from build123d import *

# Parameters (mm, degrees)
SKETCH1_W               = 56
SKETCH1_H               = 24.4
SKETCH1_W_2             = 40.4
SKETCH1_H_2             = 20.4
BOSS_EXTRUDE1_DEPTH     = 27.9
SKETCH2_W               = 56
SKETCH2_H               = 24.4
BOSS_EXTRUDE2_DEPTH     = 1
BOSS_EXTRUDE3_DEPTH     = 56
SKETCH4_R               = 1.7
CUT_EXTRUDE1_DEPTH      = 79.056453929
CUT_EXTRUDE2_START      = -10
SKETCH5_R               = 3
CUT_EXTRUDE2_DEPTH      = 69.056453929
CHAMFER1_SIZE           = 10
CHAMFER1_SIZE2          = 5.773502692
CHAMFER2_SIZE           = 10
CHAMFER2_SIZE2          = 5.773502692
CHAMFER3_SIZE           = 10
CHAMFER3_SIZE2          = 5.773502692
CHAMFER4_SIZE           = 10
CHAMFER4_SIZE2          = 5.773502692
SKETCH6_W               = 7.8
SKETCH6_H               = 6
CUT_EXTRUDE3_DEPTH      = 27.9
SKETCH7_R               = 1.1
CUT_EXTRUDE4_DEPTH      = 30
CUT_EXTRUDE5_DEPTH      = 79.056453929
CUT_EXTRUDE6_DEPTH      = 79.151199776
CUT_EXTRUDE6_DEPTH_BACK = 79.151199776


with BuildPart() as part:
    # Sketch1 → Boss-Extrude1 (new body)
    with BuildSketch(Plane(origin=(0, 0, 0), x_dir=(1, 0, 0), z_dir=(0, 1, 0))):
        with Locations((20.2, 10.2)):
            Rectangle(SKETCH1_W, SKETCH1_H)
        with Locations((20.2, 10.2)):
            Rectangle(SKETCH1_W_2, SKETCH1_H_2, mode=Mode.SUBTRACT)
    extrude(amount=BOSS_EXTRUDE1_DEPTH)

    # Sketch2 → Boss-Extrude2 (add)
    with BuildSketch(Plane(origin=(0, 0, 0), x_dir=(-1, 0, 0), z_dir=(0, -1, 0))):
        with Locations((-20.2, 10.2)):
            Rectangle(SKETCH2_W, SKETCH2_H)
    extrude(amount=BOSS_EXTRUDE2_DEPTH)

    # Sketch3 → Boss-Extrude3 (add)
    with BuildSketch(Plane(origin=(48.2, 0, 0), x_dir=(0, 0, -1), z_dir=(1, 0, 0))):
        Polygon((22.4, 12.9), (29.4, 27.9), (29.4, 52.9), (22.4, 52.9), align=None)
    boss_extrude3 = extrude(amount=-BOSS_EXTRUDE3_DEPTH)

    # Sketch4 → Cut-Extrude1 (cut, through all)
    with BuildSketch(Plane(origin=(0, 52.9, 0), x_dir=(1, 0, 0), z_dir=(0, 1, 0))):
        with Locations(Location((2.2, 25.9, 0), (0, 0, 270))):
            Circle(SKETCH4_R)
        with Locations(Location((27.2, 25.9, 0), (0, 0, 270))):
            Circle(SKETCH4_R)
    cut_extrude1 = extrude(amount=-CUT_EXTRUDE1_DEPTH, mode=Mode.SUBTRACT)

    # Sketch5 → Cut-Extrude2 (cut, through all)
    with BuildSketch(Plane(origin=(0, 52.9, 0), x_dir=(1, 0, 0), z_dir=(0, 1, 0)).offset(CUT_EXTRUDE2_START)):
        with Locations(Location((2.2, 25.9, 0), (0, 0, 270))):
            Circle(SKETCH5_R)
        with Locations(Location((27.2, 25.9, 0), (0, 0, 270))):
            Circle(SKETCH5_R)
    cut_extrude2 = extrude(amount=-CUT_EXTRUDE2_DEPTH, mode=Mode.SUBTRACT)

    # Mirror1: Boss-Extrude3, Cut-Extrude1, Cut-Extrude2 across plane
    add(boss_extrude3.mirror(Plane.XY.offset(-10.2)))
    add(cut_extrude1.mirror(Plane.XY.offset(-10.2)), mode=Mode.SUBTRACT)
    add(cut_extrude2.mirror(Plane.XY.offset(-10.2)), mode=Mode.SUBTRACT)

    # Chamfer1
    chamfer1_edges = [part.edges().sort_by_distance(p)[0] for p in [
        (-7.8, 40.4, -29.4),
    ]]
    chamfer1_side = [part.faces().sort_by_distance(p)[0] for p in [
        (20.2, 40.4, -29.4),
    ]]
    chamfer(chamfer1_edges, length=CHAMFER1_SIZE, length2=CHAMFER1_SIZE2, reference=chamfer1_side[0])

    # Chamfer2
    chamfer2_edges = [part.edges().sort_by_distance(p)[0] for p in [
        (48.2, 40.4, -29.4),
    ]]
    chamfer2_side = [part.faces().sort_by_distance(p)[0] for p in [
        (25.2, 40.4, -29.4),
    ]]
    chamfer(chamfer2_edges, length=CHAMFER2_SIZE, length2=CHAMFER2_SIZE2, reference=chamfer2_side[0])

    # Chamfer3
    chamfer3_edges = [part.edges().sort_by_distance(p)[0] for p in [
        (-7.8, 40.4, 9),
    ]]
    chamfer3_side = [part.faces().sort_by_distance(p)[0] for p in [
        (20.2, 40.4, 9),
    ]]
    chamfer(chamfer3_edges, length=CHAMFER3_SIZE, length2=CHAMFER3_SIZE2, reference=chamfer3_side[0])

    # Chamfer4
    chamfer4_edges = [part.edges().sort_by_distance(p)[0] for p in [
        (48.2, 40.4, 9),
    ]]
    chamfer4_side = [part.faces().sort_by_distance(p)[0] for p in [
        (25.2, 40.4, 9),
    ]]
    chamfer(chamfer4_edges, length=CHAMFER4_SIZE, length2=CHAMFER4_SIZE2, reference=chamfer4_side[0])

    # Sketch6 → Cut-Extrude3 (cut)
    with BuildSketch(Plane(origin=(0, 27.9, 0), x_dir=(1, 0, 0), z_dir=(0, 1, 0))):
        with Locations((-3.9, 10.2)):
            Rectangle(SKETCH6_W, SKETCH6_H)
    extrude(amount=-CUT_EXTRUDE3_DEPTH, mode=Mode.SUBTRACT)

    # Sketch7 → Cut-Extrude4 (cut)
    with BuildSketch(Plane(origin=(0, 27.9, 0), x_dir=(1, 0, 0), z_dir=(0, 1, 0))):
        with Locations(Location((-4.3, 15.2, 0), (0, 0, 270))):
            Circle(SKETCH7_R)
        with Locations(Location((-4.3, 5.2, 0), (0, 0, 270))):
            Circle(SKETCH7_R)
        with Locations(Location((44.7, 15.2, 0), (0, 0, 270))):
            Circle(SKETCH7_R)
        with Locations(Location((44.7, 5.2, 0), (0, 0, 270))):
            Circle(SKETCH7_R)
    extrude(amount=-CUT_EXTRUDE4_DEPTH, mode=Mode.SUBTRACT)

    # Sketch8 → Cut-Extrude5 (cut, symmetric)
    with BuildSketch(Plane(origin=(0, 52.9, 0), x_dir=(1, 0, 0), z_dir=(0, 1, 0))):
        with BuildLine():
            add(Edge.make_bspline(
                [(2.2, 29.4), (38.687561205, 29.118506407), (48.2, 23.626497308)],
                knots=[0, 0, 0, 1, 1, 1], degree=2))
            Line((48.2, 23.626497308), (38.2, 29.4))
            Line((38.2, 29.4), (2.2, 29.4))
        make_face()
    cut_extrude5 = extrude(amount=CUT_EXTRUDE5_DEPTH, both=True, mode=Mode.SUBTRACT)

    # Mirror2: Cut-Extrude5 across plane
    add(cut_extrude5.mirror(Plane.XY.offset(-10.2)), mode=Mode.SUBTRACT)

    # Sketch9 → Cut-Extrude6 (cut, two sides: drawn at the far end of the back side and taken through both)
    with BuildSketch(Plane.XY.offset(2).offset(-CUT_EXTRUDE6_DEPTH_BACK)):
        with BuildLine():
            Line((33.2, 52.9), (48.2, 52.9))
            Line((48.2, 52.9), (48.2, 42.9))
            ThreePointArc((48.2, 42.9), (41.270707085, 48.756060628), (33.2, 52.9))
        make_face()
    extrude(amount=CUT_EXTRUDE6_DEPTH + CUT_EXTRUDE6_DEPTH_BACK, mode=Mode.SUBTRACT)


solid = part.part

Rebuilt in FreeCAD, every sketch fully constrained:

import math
import FreeCAD as App
import Part
import Sketcher

V = App.Vector


def edges_at(feature, points):
    """Names of the edges that pass closest to the given points."""
    edges = feature.Shape.Edges
    near = lambda p: min(range(len(edges)), key=lambda i: edges[i].distToShape(Part.Vertex(*p))[0])
    return sorted({f"Edge{near(p) + 1}" for p in points})

doc = App.newDocument("Part")
params = doc.addObject("Spreadsheet::Sheet", "Params")
for row, (alias, value) in enumerate([
    ("sketch1_width", "56 mm"),
    ("sketch1_width2", "40.4 mm"),
    ("sketch1_height", "24.4 mm"),
    ("sketch1_height2", "20.4 mm"),
    ("pad1_length", "27.9 mm"),
    ("sketch2_width", "56 mm"),
    ("sketch2_height", "24.4 mm"),
    ("pad2_length", "1 mm"),
    ("sketch3_width", "25 mm"),
    ("sketch3_width2", "40 mm"),
    ("sketch3_height", "7 mm"),
    ("pad3_length", "56 mm"),
    ("sketch4_diameter", "3.4 mm"),
    ("sketch5_diameter", "6 mm"),
    ("chamfer_size", "10 mm"),
    ("chamfer_size2", "5.773503 mm"),
    ("chamfer2_size", "10 mm"),
    ("chamfer2_size2", "5.773503 mm"),
    ("chamfer3_size", "10 mm"),
    ("chamfer3_size2", "5.773503 mm"),
    ("chamfer4_size", "10 mm"),
    ("chamfer4_size2", "5.773503 mm"),
    ("sketch6_height", "6 mm"),
    ("sketch6_width", "7.8 mm"),
    ("pocket3_length", "27.9 mm"),
    ("sketch7_diameter", "2.2 mm"),
    ("pocket4_length", "30 mm"),
    ("sketch8_width", "36 mm"),
    ("pocket5_length", "158.112908 mm"),
    ("sketch9_radius", "40 mm"),
    ("sketch9_width", "15 mm"),
    ("sketch9_height", "10 mm"),
], start=1):
    params.set(f"A{row}", alias)
    params.set(f"B{row}", "=" + value)
    params.setAlias(f"B{row}", alias)

body = doc.addObject("PartDesign::Body", "Body")

# Sketch on XZ plane
sketch1 = body.newObject("Sketcher::SketchObject", "Sketch")
sketch1.AttachmentSupport = (doc.getObject("XZ_Plane"), [""])
sketch1.MapMode = "FlatFace"
sketch1.addGeometry([
    Part.LineSegment(V(-7.8, -22.4, 0), V(-7.8, 2, 0)),  # 0
    Part.LineSegment(V(-7.8, 2, 0), V(48.2, 2, 0)),  # 1
    Part.LineSegment(V(48.2, 2, 0), V(48.2, -22.4, 0)),  # 2
    Part.LineSegment(V(48.2, -22.4, 0), V(-7.8, -22.4, 0)),  # 3
    Part.LineSegment(V(40.4, 0, 0), V(0, 0, 0)),  # 4
    Part.LineSegment(V(0, 0, 0), V(0, -20.4, 0)),  # 5
    Part.LineSegment(V(0, -20.4, 0), V(40.4, -20.4, 0)),  # 6
    Part.LineSegment(V(40.4, -20.4, 0), V(40.4, 0, 0)),  # 7
], False)
sketch1.addConstraint([
    Sketcher.Constraint("Coincident", 0, 2, 1, 1),
    Sketcher.Constraint("Coincident", 1, 2, 2, 1),
    Sketcher.Constraint("Coincident", 2, 2, 3, 1),
    Sketcher.Constraint("Coincident", 3, 2, 0, 1),
    Sketcher.Constraint("Coincident", 4, 2, 5, 1),
    Sketcher.Constraint("Coincident", 5, 2, 6, 1),
    Sketcher.Constraint("Coincident", 6, 2, 7, 1),
    Sketcher.Constraint("Coincident", 7, 2, 4, 1),
    Sketcher.Constraint("Vertical", 0),
    Sketcher.Constraint("Horizontal", 1),
    Sketcher.Constraint("Vertical", 2),
    Sketcher.Constraint("Horizontal", 3),
    Sketcher.Constraint("Horizontal", 4),
    Sketcher.Constraint("Vertical", 5),
    Sketcher.Constraint("Horizontal", 6),
    Sketcher.Constraint("Vertical", 7),
    Sketcher.Constraint("Coincident", 4, 2, -1, 1),
    Sketcher.Constraint("DistanceX", 1, 1, 1, 2, 56.0),
    Sketcher.Constraint("DistanceX", 4, 2, 4, 1, 40.4),
    Sketcher.Constraint("DistanceY", 0, 1, 0, 2, 24.4),
    Sketcher.Constraint("DistanceY", 5, 2, 5, 1, 20.4),
    Sketcher.Constraint("DistanceY", -1, 1, 0, 2, 2.0),
    Sketcher.Constraint("DistanceX", 0, 2, -1, 1, 7.8),
])
sketch1.setExpression("Constraints[17]", "Params.sketch1_width")
sketch1.setExpression("Constraints[18]", "Params.sketch1_width2")
sketch1.setExpression("Constraints[19]", "Params.sketch1_height")
sketch1.setExpression("Constraints[20]", "Params.sketch1_height2")
pad1 = body.newObject("PartDesign::Pad", "Pad")
pad1.Profile = sketch1
pad1.setExpression("Length", "Params.pad1_length")
pad1.Reversed = True

# Sketch on XZ plane
sketch2 = body.newObject("Sketcher::SketchObject", "Sketch001")
sketch2.AttachmentSupport = (doc.getObject("XZ_Plane"), [""])
sketch2.MapMode = "FlatFace"
sketch2.addGeometry([
    Part.LineSegment(V(48.2, -22.4, 0), V(48.2, 2, 0)),
    Part.LineSegment(V(48.2, 2, 0), V(-7.8, 2, 0)),
    Part.LineSegment(V(-7.8, 2, 0), V(-7.8, -22.4, 0)),
    Part.LineSegment(V(-7.8, -22.4, 0), V(48.2, -22.4, 0)),
], False)
sketch2.addConstraint([
    Sketcher.Constraint("Coincident", 0, 2, 1, 1),
    Sketcher.Constraint("Coincident", 1, 2, 2, 1),
    Sketcher.Constraint("Coincident", 2, 2, 3, 1),
    Sketcher.Constraint("Coincident", 3, 2, 0, 1),
    Sketcher.Constraint("Vertical", 0),
    Sketcher.Constraint("Horizontal", 1),
    Sketcher.Constraint("Vertical", 2),
    Sketcher.Constraint("Horizontal", 3),
    Sketcher.Constraint("DistanceX", 1, 2, 1, 1, 56.0),
    Sketcher.Constraint("DistanceY", 0, 1, 0, 2, 24.4),
    Sketcher.Constraint("DistanceY", -1, 1, 0, 2, 2.0),
    Sketcher.Constraint("DistanceX", -1, 1, 0, 2, 48.2),
])
sketch2.setExpression("Constraints[8]", "Params.sketch2_width")
sketch2.setExpression("Constraints[9]", "Params.sketch2_height")
pad2 = body.newObject("PartDesign::Pad", "Pad001")
pad2.Profile = sketch2
pad2.setExpression("Length", "Params.pad2_length")

# Sketch on YZ plane
sketch3 = body.newObject("Sketcher::SketchObject", "Sketch002")
sketch3.AttachmentSupport = (doc.getObject("YZ_Plane"), [""])
sketch3.MapMode = "FlatFace"
sketch3.AttachmentOffset = App.Placement(V(0, 0, 48.2), App.Rotation())
sketch3.addGeometry([
    Part.LineSegment(V(12.9, -22.4, 0), V(27.9, -29.4, 0)),
    Part.LineSegment(V(27.9, -29.4, 0), V(52.9, -29.4, 0)),
    Part.LineSegment(V(52.9, -29.4, 0), V(52.9, -22.4, 0)),
    Part.LineSegment(V(52.9, -22.4, 0), V(12.9, -22.4, 0)),
], False)
sketch3.addConstraint([
    Sketcher.Constraint("Coincident", 0, 2, 1, 1),
    Sketcher.Constraint("Coincident", 1, 2, 2, 1),
    Sketcher.Constraint("Coincident", 2, 2, 3, 1),
    Sketcher.Constraint("Coincident", 3, 2, 0, 1),
    Sketcher.Constraint("Horizontal", 1),
    Sketcher.Constraint("Vertical", 2),
    Sketcher.Constraint("Horizontal", 3),
    Sketcher.Constraint("DistanceX", 1, 1, 1, 2, 25.0),
    Sketcher.Constraint("DistanceX", 3, 2, 3, 1, 40.0),
    Sketcher.Constraint("DistanceY", 2, 1, 2, 2, 7.0),
    Sketcher.Constraint("DistanceX", -1, 1, 0, 2, 27.9),
    Sketcher.Constraint("DistanceY", 0, 2, -1, 1, 29.4),
])
sketch3.setExpression("Constraints[7]", "Params.sketch3_width")
sketch3.setExpression("Constraints[8]", "Params.sketch3_width2")
sketch3.setExpression("Constraints[9]", "Params.sketch3_height")
pad3 = body.newObject("PartDesign::Pad", "Pad002")
pad3.Profile = sketch3
pad3.setExpression("Length", "Params.pad3_length")
pad3.Reversed = True

# Sketch on XZ plane
sketch4 = body.newObject("Sketcher::SketchObject", "Sketch003")
sketch4.AttachmentSupport = (doc.getObject("XZ_Plane"), [""])
sketch4.MapMode = "FlatFace"
sketch4.AttachmentOffset = App.Placement(V(0, 0, -52.9), App.Rotation())
sketch4.addGeometry([
    Part.Circle(V(2.2, -25.9, 0), V(0, 0, 1), 1.7),
    Part.Circle(V(27.2, -25.9, 0), V(0, 0, 1), 1.7),
], False)
sketch4.addConstraint([
    Sketcher.Constraint("Equal", 0, 1),
    Sketcher.Constraint("Horizontal", 0, 3, 1, 3),
    Sketcher.Constraint("Diameter", 0, 3.4),
    Sketcher.Constraint("DistanceX", 0, 3, 1, 3, 25.0),
    Sketcher.Constraint("DistanceX", -1, 1, 0, 3, 2.2),
    Sketcher.Constraint("DistanceY", 0, 3, -1, 1, 25.9),
])
sketch4.setExpression("Constraints[2]", "Params.sketch4_diameter")
pocket1 = body.newObject("PartDesign::Pocket", "Pocket")
pocket1.Profile = sketch4
pocket1.Type = "ThroughAll"
pocket1.Reversed = True

# Sketch on XZ plane
sketch5 = body.newObject("Sketcher::SketchObject", "Sketch004")
sketch5.AttachmentSupport = (doc.getObject("XZ_Plane"), [""])
sketch5.MapMode = "FlatFace"
sketch5.AttachmentOffset = App.Placement(V(0, 0, -42.9), App.Rotation())
sketch5.addGeometry([
    Part.Circle(V(2.2, -25.9, 0), V(0, 0, 1), 3),
    Part.Circle(V(27.2, -25.9, 0), V(0, 0, 1), 3),
], False)
sketch5.addConstraint([
    Sketcher.Constraint("Equal", 0, 1),
    Sketcher.Constraint("Horizontal", 0, 3, 1, 3),
    Sketcher.Constraint("Diameter", 0, 6.0),
    Sketcher.Constraint("DistanceX", 0, 3, 1, 3, 25.0),
    Sketcher.Constraint("DistanceX", -1, 1, 0, 3, 2.2),
    Sketcher.Constraint("DistanceY", 0, 3, -1, 1, 25.9),
])
sketch5.setExpression("Constraints[2]", "Params.sketch5_diameter")
pocket2 = body.newObject("PartDesign::Pocket", "Pocket001")
pocket2.Profile = sketch5
pocket2.Type = "ThroughAll"
pocket2.Reversed = True
doc.recompute()

datumplane = body.newObject("PartDesign::Plane", "DatumPlane")
datumplane.AttachmentSupport = (doc.getObject("XY_Plane"), [""])
datumplane.MapMode = "FlatFace"
datumplane.AttachmentOffset = App.Placement(V(0, 0, -10.2), App.Rotation())
mirrored = body.newObject("PartDesign::Mirrored", "Mirrored")
mirrored.Originals = [pad3, pocket1, pocket2]
mirrored.MirrorPlane = (datumplane, [""])
body.Tip = mirrored
doc.recompute()

chamfer = body.newObject("PartDesign::Chamfer", "Chamfer")
chamfer.Base = (mirrored, edges_at(mirrored, [(-7.8, 40.4, -29.4)]))
chamfer.ChamferType = "Two distances"
chamfer.setExpression("Size", "Params.chamfer_size")
chamfer.setExpression("Size2", "Params.chamfer_size2")
doc.recompute()

chamfer2 = body.newObject("PartDesign::Chamfer", "Chamfer001")
chamfer2.Base = (chamfer, edges_at(chamfer, [(48.2, 40.4, -29.4)]))
chamfer2.ChamferType = "Two distances"
chamfer2.setExpression("Size", "Params.chamfer2_size")
chamfer2.setExpression("Size2", "Params.chamfer2_size2")
doc.recompute()

chamfer3 = body.newObject("PartDesign::Chamfer", "Chamfer002")
chamfer3.Base = (chamfer2, edges_at(chamfer2, [(-7.8, 40.4, 9)]))
chamfer3.ChamferType = "Two distances"
chamfer3.setExpression("Size", "Params.chamfer3_size")
chamfer3.setExpression("Size2", "Params.chamfer3_size2")
chamfer3.FlipDirection = True
doc.recompute()

chamfer4 = body.newObject("PartDesign::Chamfer", "Chamfer003")
chamfer4.Base = (chamfer3, edges_at(chamfer3, [(48.2, 40.4, 9)]))
chamfer4.ChamferType = "Two distances"
chamfer4.setExpression("Size", "Params.chamfer4_size")
chamfer4.setExpression("Size2", "Params.chamfer4_size2")

# Sketch on XZ plane
sketch6 = body.newObject("Sketcher::SketchObject", "Sketch005")
sketch6.AttachmentSupport = (doc.getObject("XZ_Plane"), [""])
sketch6.MapMode = "FlatFace"
sketch6.AttachmentOffset = App.Placement(V(0, 0, -27.9), App.Rotation())
sketch6.addGeometry([
    Part.LineSegment(V(-7.8, -13.2, 0), V(-7.8, -7.2, 0)),
    Part.LineSegment(V(-7.8, -7.2, 0), V(0, -7.2, 0)),
    Part.LineSegment(V(0, -7.2, 0), V(0, -13.2, 0)),
    Part.LineSegment(V(0, -13.2, 0), V(-7.8, -13.2, 0)),
], False)
sketch6.addConstraint([
    Sketcher.Constraint("Coincident", 0, 2, 1, 1),
    Sketcher.Constraint("Coincident", 1, 2, 2, 1),
    Sketcher.Constraint("Coincident", 2, 2, 3, 1),
    Sketcher.Constraint("Coincident", 3, 2, 0, 1),
    Sketcher.Constraint("Vertical", 0),
    Sketcher.Constraint("Horizontal", 1),
    Sketcher.Constraint("Vertical", 2),
    Sketcher.Constraint("Horizontal", 3),
    Sketcher.Constraint("PointOnObject", 1, 2, -2),
    Sketcher.Constraint("DistanceY", 0, 1, 0, 2, 6.0),
    Sketcher.Constraint("DistanceX", 1, 1, 1, 2, 7.8),
    Sketcher.Constraint("DistanceY", 0, 2, -1, 1, 7.2),
])
sketch6.setExpression("Constraints[9]", "Params.sketch6_height")
sketch6.setExpression("Constraints[10]", "Params.sketch6_width")
pocket3 = body.newObject("PartDesign::Pocket", "Pocket002")
pocket3.Profile = sketch6
pocket3.setExpression("Length", "Params.pocket3_length")
pocket3.Reversed = True

# Sketch on XZ plane
sketch7 = body.newObject("Sketcher::SketchObject", "Sketch006")
sketch7.AttachmentSupport = (doc.getObject("XZ_Plane"), [""])
sketch7.MapMode = "FlatFace"
sketch7.AttachmentOffset = App.Placement(V(0, 0, -27.9), App.Rotation())
sketch7.addGeometry([
    Part.Circle(V(-4.3, -15.2, 0), V(0, 0, 1), 1.1),
    Part.Circle(V(-4.3, -5.2, 0), V(0, 0, 1), 1.1),
    Part.Circle(V(44.7, -15.2, 0), V(0, 0, 1), 1.1),
    Part.Circle(V(44.7, -5.2, 0), V(0, 0, 1), 1.1),
], False)
sketch7.addConstraint([
    Sketcher.Constraint("Equal", 0, 1),
    Sketcher.Constraint("Equal", 1, 2),
    Sketcher.Constraint("Equal", 2, 3),
    Sketcher.Constraint("Horizontal", 0, 3, 2, 3),
    Sketcher.Constraint("Horizontal", 1, 3, 3, 3),
    Sketcher.Constraint("Vertical", 0, 3, 1, 3),
    Sketcher.Constraint("Vertical", 2, 3, 3, 3),
    Sketcher.Constraint("Diameter", 0, 2.2),
    Sketcher.Constraint("DistanceY", 0, 3, 1, 3, 10.0),
    Sketcher.Constraint("DistanceX", 0, 3, 2, 3, 49.0),
    Sketcher.Constraint("DistanceX", 0, 3, -1, 1, 4.3),
    Sketcher.Constraint("DistanceY", 0, 3, -1, 1, 15.2),
])
sketch7.setExpression("Constraints[7]", "Params.sketch7_diameter")
pocket4 = body.newObject("PartDesign::Pocket", "Pocket003")
pocket4.Profile = sketch7
pocket4.setExpression("Length", "Params.pocket4_length")
pocket4.Reversed = True

# Sketch on XZ plane
sketch8 = body.newObject("Sketcher::SketchObject", "Sketch007")
sketch8.AttachmentSupport = (doc.getObject("XZ_Plane"), [""])
sketch8.MapMode = "FlatFace"
sketch8.AttachmentOffset = App.Placement(V(0, 0, -52.9), App.Rotation())
sketch8.addGeometry([
    Part.BSplineCurve([V(2.2, -29.4, 0), V(38.687561, -29.118506, 0), V(48.2, -23.626497, 0)], [3, 3], [0, 1], False, 2, [1, 1, 1], False),
    Part.LineSegment(V(48.2, -23.626497, 0), V(38.2, -29.4, 0)),
    Part.LineSegment(V(38.2, -29.4, 0), V(2.2, -29.4, 0)),
], False)
sketch8.addConstraint([
    Sketcher.Constraint("Block", 0),
    Sketcher.Constraint("Coincident", 0, 2, 1, 1),
    Sketcher.Constraint("Coincident", 1, 2, 2, 1),
    Sketcher.Constraint("Coincident", 2, 2, 0, 1),
    Sketcher.Constraint("Horizontal", 2),
    Sketcher.Constraint("DistanceX", 2, 2, 2, 1, 36.0),
])
sketch8.setExpression("Constraints[5]", "Params.sketch8_width")
pocket5 = body.newObject("PartDesign::Pocket", "Pocket004")
pocket5.Profile = sketch8
pocket5.setExpression("Length", "Params.pocket5_length")
pocket5.Midplane = True
doc.recompute()

datumplane2 = body.newObject("PartDesign::Plane", "DatumPlane001")
datumplane2.AttachmentSupport = (doc.getObject("XY_Plane"), [""])
datumplane2.MapMode = "FlatFace"
datumplane2.AttachmentOffset = App.Placement(V(0, 0, -10.2), App.Rotation())
mirrored2 = body.newObject("PartDesign::Mirrored", "Mirrored001")
mirrored2.Originals = [pocket5]
mirrored2.MirrorPlane = (datumplane2, [""])
body.Tip = mirrored2

# Sketch on XY plane
sketch9 = body.newObject("Sketcher::SketchObject", "Sketch008")
sketch9.AttachmentSupport = (doc.getObject("XY_Plane"), [""])
sketch9.MapMode = "FlatFace"
sketch9.AttachmentOffset = App.Placement(V(0, 0, 2), App.Rotation())
sketch9.addGeometry([
    Part.LineSegment(V(48.2, 52.9, 0), V(33.2, 52.9, 0)),
    Part.ArcOfCircle(Part.Circle(V(19.082699, 15.474049, 0), V(0, 0, 1), 40), math.radians(43.286651), math.radians(69.333214)),
    Part.LineSegment(V(48.2, 42.9, 0), V(48.2, 52.9, 0)),
], False)
sketch9.addConstraint([
    Sketcher.Constraint("Coincident", 0, 2, 1, 2),
    Sketcher.Constraint("Coincident", 1, 1, 2, 1),
    Sketcher.Constraint("Coincident", 2, 2, 0, 1),
    Sketcher.Constraint("Horizontal", 0),
    Sketcher.Constraint("Vertical", 2),
    Sketcher.Constraint("Radius", 1, 40.0),
    Sketcher.Constraint("DistanceX", 0, 2, 0, 1, 15.0),
    Sketcher.Constraint("DistanceY", 2, 1, 2, 2, 10.0),
    Sketcher.Constraint("DistanceX", -1, 1, 0, 2, 33.2),
    Sketcher.Constraint("DistanceY", -1, 1, 0, 2, 52.9),
])
sketch9.setExpression("Constraints[5]", "Params.sketch9_radius")
sketch9.setExpression("Constraints[6]", "Params.sketch9_width")
sketch9.setExpression("Constraints[7]", "Params.sketch9_height")
pocket6 = body.newObject("PartDesign::Pocket", "Pocket005")
pocket6.Profile = sketch9
pocket6.Type = "ThroughAll"
pocket6.Midplane = True

doc.recompute()
